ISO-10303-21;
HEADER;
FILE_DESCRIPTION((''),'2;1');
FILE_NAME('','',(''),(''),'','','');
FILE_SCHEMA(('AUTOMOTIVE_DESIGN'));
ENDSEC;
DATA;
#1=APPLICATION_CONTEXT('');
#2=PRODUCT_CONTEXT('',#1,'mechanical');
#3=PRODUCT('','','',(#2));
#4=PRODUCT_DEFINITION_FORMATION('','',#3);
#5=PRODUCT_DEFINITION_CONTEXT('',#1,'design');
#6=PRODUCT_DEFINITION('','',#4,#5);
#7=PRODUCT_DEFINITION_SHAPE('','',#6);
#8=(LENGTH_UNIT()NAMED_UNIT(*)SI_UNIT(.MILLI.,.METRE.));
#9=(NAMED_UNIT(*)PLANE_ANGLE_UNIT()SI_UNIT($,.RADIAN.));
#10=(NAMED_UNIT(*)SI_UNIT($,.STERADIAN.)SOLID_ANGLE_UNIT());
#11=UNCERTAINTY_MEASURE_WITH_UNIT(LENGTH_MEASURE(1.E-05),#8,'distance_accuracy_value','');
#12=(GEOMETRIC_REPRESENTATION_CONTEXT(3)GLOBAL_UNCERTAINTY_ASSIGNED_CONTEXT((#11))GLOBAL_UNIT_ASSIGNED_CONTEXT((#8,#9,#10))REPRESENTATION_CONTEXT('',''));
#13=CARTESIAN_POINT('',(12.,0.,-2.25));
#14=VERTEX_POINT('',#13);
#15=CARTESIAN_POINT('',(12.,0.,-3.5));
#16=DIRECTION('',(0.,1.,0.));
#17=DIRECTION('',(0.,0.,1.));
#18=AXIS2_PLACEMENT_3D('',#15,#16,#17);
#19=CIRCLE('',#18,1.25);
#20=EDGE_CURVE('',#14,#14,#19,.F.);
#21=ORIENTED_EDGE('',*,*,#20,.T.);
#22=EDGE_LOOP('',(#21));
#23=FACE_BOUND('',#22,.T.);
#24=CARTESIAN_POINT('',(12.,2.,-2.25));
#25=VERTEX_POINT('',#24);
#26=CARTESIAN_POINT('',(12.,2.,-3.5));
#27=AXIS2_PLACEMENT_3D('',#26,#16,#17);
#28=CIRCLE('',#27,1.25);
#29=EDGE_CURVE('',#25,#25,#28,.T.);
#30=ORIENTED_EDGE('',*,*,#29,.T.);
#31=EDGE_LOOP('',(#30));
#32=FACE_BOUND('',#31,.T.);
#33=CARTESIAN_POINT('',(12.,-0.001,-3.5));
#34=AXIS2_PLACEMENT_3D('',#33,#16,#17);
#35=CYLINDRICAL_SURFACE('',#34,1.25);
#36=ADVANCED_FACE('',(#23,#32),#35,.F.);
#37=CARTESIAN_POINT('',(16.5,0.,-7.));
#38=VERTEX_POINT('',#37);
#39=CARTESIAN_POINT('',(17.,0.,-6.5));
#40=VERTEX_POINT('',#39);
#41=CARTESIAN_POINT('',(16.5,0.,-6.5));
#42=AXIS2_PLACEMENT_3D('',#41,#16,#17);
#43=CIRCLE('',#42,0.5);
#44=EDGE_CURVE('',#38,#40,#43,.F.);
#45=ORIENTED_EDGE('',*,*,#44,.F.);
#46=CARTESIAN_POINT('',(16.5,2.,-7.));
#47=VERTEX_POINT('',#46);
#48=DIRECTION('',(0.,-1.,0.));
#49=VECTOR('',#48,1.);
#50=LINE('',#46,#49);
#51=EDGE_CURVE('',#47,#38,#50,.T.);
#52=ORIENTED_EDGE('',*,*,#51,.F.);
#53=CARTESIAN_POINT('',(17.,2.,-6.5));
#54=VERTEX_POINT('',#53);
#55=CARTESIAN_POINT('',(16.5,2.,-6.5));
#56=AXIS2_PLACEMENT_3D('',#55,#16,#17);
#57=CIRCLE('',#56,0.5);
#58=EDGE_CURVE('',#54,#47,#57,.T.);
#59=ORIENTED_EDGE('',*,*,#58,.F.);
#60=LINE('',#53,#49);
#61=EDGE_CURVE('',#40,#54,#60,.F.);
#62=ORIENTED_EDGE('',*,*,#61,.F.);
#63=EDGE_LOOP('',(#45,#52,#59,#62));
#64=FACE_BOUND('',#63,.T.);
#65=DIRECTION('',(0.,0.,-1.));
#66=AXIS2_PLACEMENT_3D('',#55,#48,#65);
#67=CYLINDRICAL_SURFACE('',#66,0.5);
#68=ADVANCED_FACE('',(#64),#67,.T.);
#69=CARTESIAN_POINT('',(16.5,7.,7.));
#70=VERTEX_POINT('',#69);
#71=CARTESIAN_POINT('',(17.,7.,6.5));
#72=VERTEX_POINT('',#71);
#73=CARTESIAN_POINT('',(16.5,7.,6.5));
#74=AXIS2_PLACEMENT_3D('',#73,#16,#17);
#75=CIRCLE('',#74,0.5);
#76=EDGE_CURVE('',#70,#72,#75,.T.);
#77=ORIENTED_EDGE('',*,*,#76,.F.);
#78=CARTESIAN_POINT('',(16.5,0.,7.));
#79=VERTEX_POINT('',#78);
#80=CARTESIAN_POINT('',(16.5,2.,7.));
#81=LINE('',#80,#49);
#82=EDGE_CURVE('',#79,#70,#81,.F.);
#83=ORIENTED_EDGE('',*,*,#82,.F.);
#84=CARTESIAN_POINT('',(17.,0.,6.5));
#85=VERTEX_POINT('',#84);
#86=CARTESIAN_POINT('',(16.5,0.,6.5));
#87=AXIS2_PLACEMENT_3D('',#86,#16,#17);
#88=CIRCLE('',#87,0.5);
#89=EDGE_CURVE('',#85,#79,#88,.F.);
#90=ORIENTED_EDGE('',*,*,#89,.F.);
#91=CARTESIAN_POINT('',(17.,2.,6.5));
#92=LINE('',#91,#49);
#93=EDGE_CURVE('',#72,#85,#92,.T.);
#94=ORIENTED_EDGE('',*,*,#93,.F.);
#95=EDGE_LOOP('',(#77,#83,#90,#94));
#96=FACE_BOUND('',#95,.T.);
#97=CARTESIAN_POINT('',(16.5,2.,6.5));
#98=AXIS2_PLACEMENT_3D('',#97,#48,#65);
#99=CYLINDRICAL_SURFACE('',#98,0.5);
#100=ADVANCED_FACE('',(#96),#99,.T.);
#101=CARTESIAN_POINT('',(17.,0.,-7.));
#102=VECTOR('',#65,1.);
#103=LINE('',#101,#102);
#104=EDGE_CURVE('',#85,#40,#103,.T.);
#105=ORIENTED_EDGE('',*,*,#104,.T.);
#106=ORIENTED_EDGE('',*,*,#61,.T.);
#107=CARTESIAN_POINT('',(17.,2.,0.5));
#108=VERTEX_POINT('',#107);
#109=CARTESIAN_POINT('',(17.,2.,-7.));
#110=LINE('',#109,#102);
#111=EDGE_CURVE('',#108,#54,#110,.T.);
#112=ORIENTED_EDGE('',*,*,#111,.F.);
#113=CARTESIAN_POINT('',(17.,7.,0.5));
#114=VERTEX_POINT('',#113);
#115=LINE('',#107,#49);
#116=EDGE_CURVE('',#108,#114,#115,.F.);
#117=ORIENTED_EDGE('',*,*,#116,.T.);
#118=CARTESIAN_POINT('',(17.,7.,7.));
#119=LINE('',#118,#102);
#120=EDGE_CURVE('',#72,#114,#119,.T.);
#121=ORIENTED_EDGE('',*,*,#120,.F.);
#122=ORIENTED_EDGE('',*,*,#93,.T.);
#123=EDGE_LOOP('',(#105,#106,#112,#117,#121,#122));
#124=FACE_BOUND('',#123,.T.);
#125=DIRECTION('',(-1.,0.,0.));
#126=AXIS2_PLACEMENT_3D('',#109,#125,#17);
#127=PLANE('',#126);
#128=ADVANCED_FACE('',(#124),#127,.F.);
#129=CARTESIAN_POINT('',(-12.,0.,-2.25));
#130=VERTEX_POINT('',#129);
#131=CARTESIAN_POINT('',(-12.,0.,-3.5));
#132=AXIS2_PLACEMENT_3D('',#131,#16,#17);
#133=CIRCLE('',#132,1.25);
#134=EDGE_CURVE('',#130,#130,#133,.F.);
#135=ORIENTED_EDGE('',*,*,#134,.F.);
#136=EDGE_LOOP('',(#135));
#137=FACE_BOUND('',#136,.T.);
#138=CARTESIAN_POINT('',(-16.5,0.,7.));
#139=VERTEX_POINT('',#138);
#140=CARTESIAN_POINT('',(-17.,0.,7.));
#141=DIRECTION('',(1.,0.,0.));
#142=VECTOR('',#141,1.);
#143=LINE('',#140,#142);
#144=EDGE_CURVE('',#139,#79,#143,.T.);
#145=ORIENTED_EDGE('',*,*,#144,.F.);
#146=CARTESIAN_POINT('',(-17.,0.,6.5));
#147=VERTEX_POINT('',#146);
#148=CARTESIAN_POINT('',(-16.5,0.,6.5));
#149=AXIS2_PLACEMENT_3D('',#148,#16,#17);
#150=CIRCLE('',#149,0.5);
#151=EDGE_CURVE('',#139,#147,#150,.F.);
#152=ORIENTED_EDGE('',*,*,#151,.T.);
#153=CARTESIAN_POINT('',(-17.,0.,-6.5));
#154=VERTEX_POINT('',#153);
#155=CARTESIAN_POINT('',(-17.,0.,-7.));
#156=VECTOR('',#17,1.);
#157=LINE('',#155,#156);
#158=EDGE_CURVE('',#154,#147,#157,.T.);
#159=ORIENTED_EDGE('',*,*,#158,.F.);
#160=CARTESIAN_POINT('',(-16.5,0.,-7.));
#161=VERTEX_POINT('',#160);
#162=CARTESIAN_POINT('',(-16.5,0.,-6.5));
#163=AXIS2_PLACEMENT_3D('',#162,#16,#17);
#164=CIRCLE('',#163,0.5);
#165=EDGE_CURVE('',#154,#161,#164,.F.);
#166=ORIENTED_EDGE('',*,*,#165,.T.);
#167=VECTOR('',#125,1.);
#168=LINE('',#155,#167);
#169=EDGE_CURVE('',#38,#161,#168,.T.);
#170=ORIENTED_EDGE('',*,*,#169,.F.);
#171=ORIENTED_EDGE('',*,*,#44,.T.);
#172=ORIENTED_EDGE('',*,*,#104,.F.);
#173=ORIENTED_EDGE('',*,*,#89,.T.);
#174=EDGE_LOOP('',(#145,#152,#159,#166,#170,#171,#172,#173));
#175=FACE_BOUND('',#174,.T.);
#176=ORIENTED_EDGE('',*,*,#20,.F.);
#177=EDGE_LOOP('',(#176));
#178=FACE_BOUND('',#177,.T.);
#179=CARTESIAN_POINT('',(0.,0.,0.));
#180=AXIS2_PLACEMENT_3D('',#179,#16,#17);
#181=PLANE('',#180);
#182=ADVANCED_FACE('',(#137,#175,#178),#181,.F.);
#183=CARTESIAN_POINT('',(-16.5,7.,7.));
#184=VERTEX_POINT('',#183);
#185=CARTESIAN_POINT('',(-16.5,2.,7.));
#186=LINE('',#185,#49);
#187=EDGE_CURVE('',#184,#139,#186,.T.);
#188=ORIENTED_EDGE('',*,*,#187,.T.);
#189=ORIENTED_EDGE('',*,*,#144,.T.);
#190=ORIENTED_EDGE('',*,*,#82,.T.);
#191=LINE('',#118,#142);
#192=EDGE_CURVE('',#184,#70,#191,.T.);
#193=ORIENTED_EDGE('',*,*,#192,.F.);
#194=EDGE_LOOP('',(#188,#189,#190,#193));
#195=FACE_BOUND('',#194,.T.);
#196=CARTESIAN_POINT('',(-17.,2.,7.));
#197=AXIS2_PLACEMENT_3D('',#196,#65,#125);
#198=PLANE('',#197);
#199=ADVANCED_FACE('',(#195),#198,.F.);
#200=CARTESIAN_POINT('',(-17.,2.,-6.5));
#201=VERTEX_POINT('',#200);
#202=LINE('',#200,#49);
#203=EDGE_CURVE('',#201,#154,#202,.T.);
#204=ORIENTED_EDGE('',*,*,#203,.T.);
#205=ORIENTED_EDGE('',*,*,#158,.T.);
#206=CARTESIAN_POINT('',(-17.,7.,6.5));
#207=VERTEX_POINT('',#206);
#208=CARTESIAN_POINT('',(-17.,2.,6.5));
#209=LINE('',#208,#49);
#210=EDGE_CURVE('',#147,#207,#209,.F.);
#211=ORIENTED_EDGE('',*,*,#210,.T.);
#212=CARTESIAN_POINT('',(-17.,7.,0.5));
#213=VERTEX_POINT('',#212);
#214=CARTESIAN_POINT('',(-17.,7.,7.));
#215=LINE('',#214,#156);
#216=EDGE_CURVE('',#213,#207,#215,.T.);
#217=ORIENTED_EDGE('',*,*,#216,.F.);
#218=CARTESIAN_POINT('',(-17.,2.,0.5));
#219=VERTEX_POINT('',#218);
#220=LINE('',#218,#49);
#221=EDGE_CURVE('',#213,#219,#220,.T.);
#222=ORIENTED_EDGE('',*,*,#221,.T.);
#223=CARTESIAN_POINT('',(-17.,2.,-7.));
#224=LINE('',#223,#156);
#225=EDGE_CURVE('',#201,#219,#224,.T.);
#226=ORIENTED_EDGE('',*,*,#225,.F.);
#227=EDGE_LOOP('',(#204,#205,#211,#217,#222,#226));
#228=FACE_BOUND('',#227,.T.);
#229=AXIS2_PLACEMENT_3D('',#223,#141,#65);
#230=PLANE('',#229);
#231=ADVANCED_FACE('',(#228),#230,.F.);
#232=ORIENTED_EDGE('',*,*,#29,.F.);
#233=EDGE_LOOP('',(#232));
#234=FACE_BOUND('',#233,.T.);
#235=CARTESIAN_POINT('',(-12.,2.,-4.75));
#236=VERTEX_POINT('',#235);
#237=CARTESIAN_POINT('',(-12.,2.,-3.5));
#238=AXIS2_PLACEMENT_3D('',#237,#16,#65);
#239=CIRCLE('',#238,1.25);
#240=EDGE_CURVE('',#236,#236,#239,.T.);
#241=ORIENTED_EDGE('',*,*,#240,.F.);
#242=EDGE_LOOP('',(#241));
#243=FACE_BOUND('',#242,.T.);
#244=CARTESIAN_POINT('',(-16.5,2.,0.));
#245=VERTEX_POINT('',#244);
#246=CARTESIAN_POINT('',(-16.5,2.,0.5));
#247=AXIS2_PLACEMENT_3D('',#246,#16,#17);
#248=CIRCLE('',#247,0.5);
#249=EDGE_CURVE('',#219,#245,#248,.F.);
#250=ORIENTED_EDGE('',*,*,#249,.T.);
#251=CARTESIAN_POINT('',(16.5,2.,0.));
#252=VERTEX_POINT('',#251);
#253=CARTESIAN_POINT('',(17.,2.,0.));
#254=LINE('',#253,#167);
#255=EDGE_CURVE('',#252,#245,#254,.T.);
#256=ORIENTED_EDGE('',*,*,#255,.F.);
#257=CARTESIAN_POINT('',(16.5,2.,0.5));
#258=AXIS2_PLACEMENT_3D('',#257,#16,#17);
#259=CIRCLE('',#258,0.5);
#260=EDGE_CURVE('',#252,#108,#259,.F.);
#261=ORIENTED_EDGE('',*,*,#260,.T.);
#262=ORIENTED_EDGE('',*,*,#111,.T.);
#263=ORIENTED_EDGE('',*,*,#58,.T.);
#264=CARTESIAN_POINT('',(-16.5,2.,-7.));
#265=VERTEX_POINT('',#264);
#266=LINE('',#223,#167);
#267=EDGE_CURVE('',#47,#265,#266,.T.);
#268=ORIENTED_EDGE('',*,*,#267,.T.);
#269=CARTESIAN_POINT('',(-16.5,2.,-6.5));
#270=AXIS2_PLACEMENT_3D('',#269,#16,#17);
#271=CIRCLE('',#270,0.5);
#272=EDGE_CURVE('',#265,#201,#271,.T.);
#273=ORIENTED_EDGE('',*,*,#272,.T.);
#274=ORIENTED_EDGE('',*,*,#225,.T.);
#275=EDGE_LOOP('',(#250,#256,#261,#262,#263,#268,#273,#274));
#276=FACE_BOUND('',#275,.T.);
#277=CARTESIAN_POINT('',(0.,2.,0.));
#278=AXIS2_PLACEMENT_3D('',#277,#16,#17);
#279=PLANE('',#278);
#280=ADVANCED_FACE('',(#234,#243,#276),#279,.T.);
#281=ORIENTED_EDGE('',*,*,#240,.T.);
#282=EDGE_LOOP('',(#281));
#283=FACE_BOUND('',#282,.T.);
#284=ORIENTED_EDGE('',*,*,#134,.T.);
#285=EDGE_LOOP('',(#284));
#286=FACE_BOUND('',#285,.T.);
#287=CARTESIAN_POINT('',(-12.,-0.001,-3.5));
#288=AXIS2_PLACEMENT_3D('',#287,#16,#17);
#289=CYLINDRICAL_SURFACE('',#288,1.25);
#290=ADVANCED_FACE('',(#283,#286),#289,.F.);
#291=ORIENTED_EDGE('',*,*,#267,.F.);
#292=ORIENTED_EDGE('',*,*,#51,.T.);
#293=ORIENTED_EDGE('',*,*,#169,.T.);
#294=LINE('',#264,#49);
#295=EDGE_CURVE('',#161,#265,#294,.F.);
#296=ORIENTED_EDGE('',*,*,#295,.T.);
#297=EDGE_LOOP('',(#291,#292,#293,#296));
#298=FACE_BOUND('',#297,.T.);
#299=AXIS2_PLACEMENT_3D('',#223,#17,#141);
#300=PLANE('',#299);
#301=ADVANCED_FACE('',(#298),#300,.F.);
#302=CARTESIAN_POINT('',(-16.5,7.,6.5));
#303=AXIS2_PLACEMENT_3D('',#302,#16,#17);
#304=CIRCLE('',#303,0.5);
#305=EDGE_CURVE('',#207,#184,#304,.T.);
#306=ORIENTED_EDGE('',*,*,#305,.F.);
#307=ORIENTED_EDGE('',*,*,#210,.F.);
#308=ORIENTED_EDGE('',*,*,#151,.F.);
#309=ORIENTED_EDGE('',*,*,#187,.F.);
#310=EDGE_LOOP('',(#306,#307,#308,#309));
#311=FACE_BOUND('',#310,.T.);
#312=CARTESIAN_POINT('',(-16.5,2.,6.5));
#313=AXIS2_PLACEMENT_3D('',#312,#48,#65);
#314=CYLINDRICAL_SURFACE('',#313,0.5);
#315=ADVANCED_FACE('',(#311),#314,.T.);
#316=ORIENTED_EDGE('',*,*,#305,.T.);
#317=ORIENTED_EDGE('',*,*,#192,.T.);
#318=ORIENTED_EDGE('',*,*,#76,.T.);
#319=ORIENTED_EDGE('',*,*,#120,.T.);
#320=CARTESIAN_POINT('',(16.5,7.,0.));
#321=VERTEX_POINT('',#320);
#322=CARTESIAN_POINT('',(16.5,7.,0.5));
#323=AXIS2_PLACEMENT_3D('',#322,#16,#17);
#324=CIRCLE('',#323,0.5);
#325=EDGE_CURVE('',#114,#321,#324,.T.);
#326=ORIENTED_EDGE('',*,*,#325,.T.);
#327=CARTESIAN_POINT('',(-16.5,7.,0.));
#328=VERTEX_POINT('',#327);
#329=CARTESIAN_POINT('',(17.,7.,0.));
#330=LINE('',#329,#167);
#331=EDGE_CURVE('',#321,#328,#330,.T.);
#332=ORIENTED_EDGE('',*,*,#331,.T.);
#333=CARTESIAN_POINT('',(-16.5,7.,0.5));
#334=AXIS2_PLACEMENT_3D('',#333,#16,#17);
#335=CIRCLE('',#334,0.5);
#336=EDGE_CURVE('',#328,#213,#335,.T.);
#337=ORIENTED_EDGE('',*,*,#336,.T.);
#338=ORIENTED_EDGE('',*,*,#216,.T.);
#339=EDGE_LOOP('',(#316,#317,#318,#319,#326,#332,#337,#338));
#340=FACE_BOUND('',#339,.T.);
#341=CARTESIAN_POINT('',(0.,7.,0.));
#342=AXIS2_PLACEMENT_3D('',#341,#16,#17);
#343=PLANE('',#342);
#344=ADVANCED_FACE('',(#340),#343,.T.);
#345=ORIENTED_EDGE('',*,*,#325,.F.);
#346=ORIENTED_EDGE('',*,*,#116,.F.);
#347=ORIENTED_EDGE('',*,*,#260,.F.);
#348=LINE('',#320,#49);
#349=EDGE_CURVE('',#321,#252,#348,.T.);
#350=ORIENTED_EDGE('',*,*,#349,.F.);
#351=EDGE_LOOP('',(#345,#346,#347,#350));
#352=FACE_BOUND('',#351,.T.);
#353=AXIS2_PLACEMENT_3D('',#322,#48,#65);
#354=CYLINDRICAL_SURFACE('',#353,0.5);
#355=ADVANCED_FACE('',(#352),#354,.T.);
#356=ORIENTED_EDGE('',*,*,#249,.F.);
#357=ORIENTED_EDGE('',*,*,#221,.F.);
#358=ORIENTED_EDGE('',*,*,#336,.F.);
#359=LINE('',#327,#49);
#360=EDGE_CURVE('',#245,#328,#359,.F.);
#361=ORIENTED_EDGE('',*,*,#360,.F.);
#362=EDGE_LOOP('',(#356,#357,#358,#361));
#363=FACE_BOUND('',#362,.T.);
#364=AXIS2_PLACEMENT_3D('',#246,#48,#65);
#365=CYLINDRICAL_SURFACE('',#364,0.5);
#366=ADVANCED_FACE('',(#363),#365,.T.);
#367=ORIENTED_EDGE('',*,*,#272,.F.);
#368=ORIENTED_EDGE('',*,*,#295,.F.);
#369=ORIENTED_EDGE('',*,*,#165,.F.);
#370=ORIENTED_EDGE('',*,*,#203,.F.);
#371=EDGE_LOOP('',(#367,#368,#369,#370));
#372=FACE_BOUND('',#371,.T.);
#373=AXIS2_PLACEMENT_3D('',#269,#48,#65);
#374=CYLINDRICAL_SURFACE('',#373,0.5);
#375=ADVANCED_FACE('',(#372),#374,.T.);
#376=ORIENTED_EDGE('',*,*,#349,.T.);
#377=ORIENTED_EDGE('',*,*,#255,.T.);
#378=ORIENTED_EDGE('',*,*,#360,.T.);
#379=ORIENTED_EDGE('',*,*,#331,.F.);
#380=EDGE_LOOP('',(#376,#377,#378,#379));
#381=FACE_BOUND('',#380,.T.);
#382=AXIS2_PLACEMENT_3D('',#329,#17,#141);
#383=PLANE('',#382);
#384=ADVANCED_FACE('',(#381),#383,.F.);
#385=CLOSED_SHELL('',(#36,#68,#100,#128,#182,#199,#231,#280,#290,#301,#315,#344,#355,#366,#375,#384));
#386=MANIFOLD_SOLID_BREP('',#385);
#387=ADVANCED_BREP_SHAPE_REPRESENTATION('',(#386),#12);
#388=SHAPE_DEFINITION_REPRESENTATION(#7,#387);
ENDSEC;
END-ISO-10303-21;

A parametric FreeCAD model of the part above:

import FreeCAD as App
import Part
import Sketcher
Q = App.Units.Quantity


def edges_at(feature, points):
    """Names of the edges that pass closest to the given points."""
    edges = feature.Shape.Edges
    near = lambda p: min(range(len(edges)), key=lambda i: edges[i].distToShape(Part.Vertex(*p))[0])
    return sorted({f"Edge{near(p) + 1}" for p in points})

doc = App.newDocument("Part")
params = doc.addObject("Spreadsheet::Sheet", "Params")
for row, (alias, value) in enumerate([
    ("sketch1_width", "34 mm"),
    ("sketch1_height", "14 mm"),
    ("pad1_length", "2 mm"),
    ("sketch2_width", "34 mm"),
    ("sketch2_height", "7 mm"),
    ("pad2_length", "5 mm"),
    ("fillet_radius", "0.5 mm"),
    ("sketch3_diameter", "2.5 mm"),
    ("sketch4_diameter", "2.5 mm"),
], start=1):
    params.set(f"A{row}", alias)
    params.set(f"B{row}", "=" + value)
    params.setAlias(f"B{row}", alias)

body = doc.addObject("PartDesign::Body", "Body")

# Sketch on XZ plane
sketch1 = body.newObject("Sketcher::SketchObject", "Sketch")
sketch1.AttachmentSupport = (doc.getObject("XZ_Plane"), [""])
sketch1.MapMode = "FlatFace"
sketch1.addGeometry([
    Part.LineSegment(App.Vector(-17, -7, 0), App.Vector(-17, 7, 0)),
    Part.LineSegment(App.Vector(-17, 7, 0), App.Vector(17, 7, 0)),
    Part.LineSegment(App.Vector(17, 7, 0), App.Vector(17, -7, 0)),
    Part.LineSegment(App.Vector(17, -7, 0), App.Vector(-17, -7, 0)),
], False)
sketch1.addConstraint([
    Sketcher.Constraint("Coincident", 0, 2, 1, 1),
    Sketcher.Constraint("Coincident", 1, 2, 2, 1),
    Sketcher.Constraint("Coincident", 2, 2, 3, 1),
    Sketcher.Constraint("Coincident", 3, 2, 0, 1),
    Sketcher.Constraint("Vertical", 0),
    Sketcher.Constraint("Horizontal", 1),
    Sketcher.Constraint("Vertical", 2),
    Sketcher.Constraint("Horizontal", 3),
    Sketcher.Constraint("Symmetric", 0, 2, 2, 2, -1, 1),
    Sketcher.Constraint("DistanceX", 1, 1, 1, 2, Q("34 mm")),
    Sketcher.Constraint("DistanceY", 0, 1, 0, 2, Q("14 mm")),
])
sketch1.setExpression("Constraints[9]", "Params.sketch1_width")
sketch1.setExpression("Constraints[10]", "Params.sketch1_height")
pad1 = body.newObject("PartDesign::Pad", "Pad")
pad1.Profile = sketch1
pad1.setExpression("Length", "Params.pad1_length")
pad1.Reversed = True

# Sketch on XZ plane
sketch2 = body.newObject("Sketcher::SketchObject", "Sketch001")
sketch2.AttachmentSupport = (doc.getObject("XZ_Plane"), [""])
sketch2.MapMode = "FlatFace"
sketch2.AttachmentOffset = App.Placement(App.Vector(0, 0, -2), App.Rotation())
sketch2.addGeometry([
    Part.LineSegment(App.Vector(-17, 0, 0), App.Vector(-17, 7, 0)),
    Part.LineSegment(App.Vector(-17, 7, 0), App.Vector(17, 7, 0)),
    Part.LineSegment(App.Vector(17, 7, 0), App.Vector(17, 0, 0)),
    Part.LineSegment(App.Vector(17, 0, 0), App.Vector(-17, 0, 0)),
], False)
sketch2.addConstraint([
    Sketcher.Constraint("Coincident", 0, 2, 1, 1),
    Sketcher.Constraint("Coincident", 1, 2, 2, 1),
    Sketcher.Constraint("Coincident", 2, 2, 3, 1),
    Sketcher.Constraint("Coincident", 3, 2, 0, 1),
    Sketcher.Constraint("Vertical", 0),
    Sketcher.Constraint("Horizontal", 1),
    Sketcher.Constraint("Vertical", 2),
    Sketcher.Constraint("Horizontal", 3),
    Sketcher.Constraint("Symmetric", 2, 2, 3, 2, -1, 1),
    Sketcher.Constraint("DistanceX", 1, 1, 1, 2, Q("34 mm")),
    Sketcher.Constraint("DistanceY", 0, 1, 0, 2, Q("7 mm")),
])
sketch2.setExpression("Constraints[9]", "Params.sketch2_width")
sketch2.setExpression("Constraints[10]", "Params.sketch2_height")
pad2 = body.newObject("PartDesign::Pad", "Pad001")
pad2.Profile = sketch2
pad2.setExpression("Length", "Params.pad2_length")
pad2.Reversed = True
doc.recompute()

fillet = body.newObject("PartDesign::Fillet", "Fillet")
fillet.Base = (pad2, edges_at(pad2, [
    (17, 4.5, 0),
    (-17, 4.5, 0),
    (17, 3.5, 7),
    (-17, 3.5, 7),
    (-17, 1, -7),
    (17, 1, -7),
]))
fillet.setExpression("Radius", "Params.fillet_radius")

# Sketch on XZ plane
sketch3 = body.newObject("Sketcher::SketchObject", "Sketch002")
sketch3.AttachmentSupport = (doc.getObject("XZ_Plane"), [""])
sketch3.MapMode = "FlatFace"
sketch3.AttachmentOffset = App.Placement(App.Vector(0, 0, -2), App.Rotation())
sketch3.addGeometry(Part.Circle(App.Vector(12, -3.5, 0), App.Vector(0, 0, 1), 1.2), False)
sketch3.addConstraint([
    Sketcher.Constraint("Diameter", 0, Q("2.5 mm")),
    Sketcher.Constraint("DistanceX", -1, 1, 0, 3, Q("12 mm")),
    Sketcher.Constraint("DistanceY", 0, 3, -1, 1, Q("3.5 mm")),
])
sketch3.setExpression("Constraints[0]", "Params.sketch3_diameter")
pocket1 = body.newObject("PartDesign::Pocket", "Pocket")
pocket1.Profile = sketch3
pocket1.Type = "UpToFirst"
pocket1.Reversed = True

# Sketch on XZ plane
sketch4 = body.newObject("Sketcher::SketchObject", "Sketch003")
sketch4.AttachmentSupport = (doc.getObject("XZ_Plane"), [""])
sketch4.MapMode = "FlatFace"
sketch4.AttachmentOffset = App.Placement(App.Vector(0, 0, -2), App.Rotation())
sketch4.addGeometry(Part.Circle(App.Vector(-12, -3.5, 0), App.Vector(0, 0, 1), 1.2), False)
sketch4.addConstraint([
    Sketcher.Constraint("Diameter", 0, Q("2.5 mm")),
    Sketcher.Constraint("DistanceX", 0, 3, -1, 1, Q("12 mm")),
    Sketcher.Constraint("DistanceY", 0, 3, -1, 1, Q("3.5 mm")),
])
sketch4.setExpression("Constraints[0]", "Params.sketch4_diameter")
pocket2 = body.newObject("PartDesign::Pocket", "Pocket001")
pocket2.Profile = sketch4
pocket2.Type = "UpToFirst"
pocket2.Reversed = True

doc.recompute()
